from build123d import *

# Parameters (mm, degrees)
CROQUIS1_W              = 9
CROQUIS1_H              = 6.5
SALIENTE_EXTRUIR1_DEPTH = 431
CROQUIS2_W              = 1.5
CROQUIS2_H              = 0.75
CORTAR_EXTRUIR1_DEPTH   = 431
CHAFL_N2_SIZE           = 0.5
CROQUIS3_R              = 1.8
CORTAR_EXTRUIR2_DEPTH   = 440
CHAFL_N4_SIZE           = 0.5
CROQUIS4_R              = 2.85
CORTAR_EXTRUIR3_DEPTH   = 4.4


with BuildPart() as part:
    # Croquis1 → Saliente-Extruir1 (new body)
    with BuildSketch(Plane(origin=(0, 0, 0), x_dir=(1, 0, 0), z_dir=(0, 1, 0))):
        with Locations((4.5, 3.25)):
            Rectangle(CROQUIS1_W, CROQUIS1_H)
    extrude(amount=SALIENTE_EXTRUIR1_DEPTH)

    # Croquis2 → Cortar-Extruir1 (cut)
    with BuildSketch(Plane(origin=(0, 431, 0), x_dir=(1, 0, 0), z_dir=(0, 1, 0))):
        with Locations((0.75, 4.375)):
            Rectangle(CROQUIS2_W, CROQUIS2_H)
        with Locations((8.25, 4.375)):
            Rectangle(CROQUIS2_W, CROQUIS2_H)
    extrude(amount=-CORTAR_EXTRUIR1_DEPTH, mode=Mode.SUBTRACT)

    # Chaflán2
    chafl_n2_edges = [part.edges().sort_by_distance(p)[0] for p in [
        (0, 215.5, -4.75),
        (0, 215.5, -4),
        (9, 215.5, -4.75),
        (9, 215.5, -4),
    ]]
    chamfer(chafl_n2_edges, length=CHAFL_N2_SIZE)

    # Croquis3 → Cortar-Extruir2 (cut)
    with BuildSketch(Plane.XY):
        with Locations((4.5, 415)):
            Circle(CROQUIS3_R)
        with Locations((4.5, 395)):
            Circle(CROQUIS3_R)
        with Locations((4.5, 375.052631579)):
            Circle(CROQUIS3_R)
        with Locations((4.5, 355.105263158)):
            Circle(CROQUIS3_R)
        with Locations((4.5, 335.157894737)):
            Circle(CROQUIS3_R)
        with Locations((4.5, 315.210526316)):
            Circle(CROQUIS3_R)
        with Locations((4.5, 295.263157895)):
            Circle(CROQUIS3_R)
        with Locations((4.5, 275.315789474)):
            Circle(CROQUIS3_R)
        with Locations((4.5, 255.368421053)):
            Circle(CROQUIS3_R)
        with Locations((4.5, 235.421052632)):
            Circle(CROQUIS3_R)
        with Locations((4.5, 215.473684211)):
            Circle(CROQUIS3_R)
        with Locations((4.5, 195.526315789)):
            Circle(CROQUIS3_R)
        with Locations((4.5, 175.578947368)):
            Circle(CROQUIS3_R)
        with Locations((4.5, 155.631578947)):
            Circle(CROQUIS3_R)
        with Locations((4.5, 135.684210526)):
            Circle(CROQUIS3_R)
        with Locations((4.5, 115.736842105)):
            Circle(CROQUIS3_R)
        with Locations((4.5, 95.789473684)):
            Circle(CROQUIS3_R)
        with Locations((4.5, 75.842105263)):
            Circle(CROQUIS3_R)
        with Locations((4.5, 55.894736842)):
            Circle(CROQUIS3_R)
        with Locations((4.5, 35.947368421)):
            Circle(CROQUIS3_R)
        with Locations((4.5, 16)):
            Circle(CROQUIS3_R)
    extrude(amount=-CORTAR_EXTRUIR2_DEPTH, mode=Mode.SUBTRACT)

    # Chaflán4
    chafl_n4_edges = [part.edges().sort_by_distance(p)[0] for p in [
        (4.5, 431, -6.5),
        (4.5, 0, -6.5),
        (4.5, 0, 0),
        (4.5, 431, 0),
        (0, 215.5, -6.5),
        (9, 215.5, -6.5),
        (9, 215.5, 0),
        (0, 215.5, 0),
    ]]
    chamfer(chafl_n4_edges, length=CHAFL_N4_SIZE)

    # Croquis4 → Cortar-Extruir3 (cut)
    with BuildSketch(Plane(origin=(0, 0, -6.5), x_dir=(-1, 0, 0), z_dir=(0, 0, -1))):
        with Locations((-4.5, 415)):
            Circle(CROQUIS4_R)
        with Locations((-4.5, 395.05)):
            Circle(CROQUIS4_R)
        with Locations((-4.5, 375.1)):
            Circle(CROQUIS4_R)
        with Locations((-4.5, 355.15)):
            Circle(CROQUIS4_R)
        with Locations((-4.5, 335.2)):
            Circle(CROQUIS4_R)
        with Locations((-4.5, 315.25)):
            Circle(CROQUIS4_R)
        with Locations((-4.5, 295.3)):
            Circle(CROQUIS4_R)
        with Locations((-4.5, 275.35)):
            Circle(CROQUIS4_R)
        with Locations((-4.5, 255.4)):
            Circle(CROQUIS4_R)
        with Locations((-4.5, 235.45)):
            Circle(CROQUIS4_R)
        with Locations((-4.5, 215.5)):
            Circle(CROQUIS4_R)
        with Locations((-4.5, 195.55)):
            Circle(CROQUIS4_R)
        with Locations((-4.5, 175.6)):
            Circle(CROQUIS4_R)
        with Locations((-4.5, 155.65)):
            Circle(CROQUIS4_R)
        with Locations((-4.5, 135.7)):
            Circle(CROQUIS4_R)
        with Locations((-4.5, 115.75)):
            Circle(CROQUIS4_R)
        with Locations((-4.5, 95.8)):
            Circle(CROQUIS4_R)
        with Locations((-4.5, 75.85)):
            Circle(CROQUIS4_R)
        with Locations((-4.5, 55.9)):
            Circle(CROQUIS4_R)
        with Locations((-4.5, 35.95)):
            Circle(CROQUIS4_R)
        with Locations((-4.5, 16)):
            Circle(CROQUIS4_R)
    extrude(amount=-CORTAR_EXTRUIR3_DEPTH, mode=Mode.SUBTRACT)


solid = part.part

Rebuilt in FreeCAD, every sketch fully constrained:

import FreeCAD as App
import Part
import Sketcher

V = App.Vector
Q = App.Units.Quantity


def edges_at(feature, points):
    """Names of the edges that pass closest to the given points."""
    edges = feature.Shape.Edges
    near = lambda p: min(range(len(edges)), key=lambda i: edges[i].distToShape(Part.Vertex(*p))[0])
    return sorted({f"Edge{near(p) + 1}" for p in points})


def add_polygon(sketch, points):
    """Adds a closed chain of lines whose ends are joined by coincident constraints."""
    first, n = sketch.GeometryCount, len(points)
    for a, b in zip(points, points[1:] + points[:1]):
        sketch.addGeometry(Part.LineSegment(App.Vector(*a, 0), App.Vector(*b, 0)), False)
    for i in range(n):
        sketch.addConstraint(Sketcher.Constraint("Coincident", first + i, 2, first + (i + 1) % n, 1))

doc = App.newDocument("Part")
body = doc.addObject("PartDesign::Body", "Body")

sketch1 = doc.addObject("Sketcher::SketchObject", "Sketch")
body.addObject(sketch1)
sketch1.AttachmentSupport = (doc.XZ_Plane, [""])
sketch1.MapMode = "FlatFace"
add_polygon(sketch1, [(0, -6), (0, 0), (9, 0), (9, -6)])
sketch1.addConstraint([
    Sketcher.Constraint("Vertical", 0),
    Sketcher.Constraint("Horizontal", 1),
    Sketcher.Constraint("Vertical", 2),
    Sketcher.Constraint("Horizontal", 3),
    Sketcher.Constraint("Coincident", 0, 2, -1, 1),
    Sketcher.Constraint("DistanceX", 1, 1, 1, 2, Q("9 mm")),
    Sketcher.Constraint("DistanceY", 0, 1, 0, 2, Q("6.5 mm")),
])
pad1 = doc.addObject("PartDesign::Pad", "Pad")
body.addObject(pad1)
pad1.Profile = sketch1
pad1.Length = 431
pad1.Reversed = True

sketch2 = doc.addObject("Sketcher::SketchObject", "Sketch001")
body.addObject(sketch2)
sketch2.AttachmentSupport = (doc.XZ_Plane, [""])
sketch2.MapMode = "FlatFace"
sketch2.AttachmentOffset = App.Placement(V(0, 0, -431), App.Rotation())
add_polygon(sketch2, [(0, -4.8), (0, -4), (1.5, -4), (1.5, -4.8)])
add_polygon(sketch2, [(7.5, -4.8), (7.5, -4), (9, -4), (9, -4.8)])
sketch2.addConstraint([
    Sketcher.Constraint("Vertical", 0),
    Sketcher.Constraint("Horizontal", 1),
    Sketcher.Constraint("Vertical", 2),
    Sketcher.Constraint("Horizontal", 3),
    Sketcher.Constraint("Vertical", 4),
    Sketcher.Constraint("Horizontal", 5),
    Sketcher.Constraint("Vertical", 6),
    Sketcher.Constraint("Horizontal", 7),
    Sketcher.Constraint("PointOnObject", 0, 2, -2),
    Sketcher.Constraint("Horizontal", 1, 2, 4, 2),
    Sketcher.Constraint("Horizontal", 3, 2, 6, 2),
    Sketcher.Constraint("Equal", 3, 5),
    Sketcher.Constraint("DistanceX", 1, 1, 1, 2, Q("1.5 mm")),
    Sketcher.Constraint("DistanceY", 0, 2, -1, 1, Q("4 mm")),
    Sketcher.Constraint("DistanceX", -1, 1, 5, 2, Q("9 mm")),
    Sketcher.Constraint("DistanceY", 0, 1, 0, 2, Q("0.75 mm")),
])
pocket1 = doc.addObject("PartDesign::Pocket", "Pocket")
body.addObject(pocket1)
pocket1.Profile = sketch2
pocket1.Length = 431
pocket1.Reversed = True
doc.recompute()

chamfer = doc.addObject("PartDesign::Chamfer", "Chamfer")
body.addObject(chamfer)
chamfer.Base = (pocket1, edges_at(pocket1, [
    (0, 215.5, -4.75),
    (0, 215.5, -4),
    (9, 215.5, -4.75),
    (9, 215.5, -4),
]))
chamfer.Size = 0.5

sketch3 = doc.addObject("Sketcher::SketchObject", "Sketch002")
body.addObject(sketch3)
sketch3.AttachmentSupport = (doc.XY_Plane, [""])
sketch3.MapMode = "FlatFace"
sketch3.addGeometry([
    Part.Circle(V(4.5, 415, 0), V(0, 0, 1), 1.8),
    Part.Circle(V(4.5, 395, 0), V(0, 0, 1), 1.8),
    Part.Circle(V(4.5, 375.1, 0), V(0, 0, 1), 1.8),
    Part.Circle(V(4.5, 355.1, 0), V(0, 0, 1), 1.8),
    Part.Circle(V(4.5, 335.2, 0), V(0, 0, 1), 1.8),
    Part.Circle(V(4.5, 315.2, 0), V(0, 0, 1), 1.8),
    Part.Circle(V(4.5, 295.3, 0), V(0, 0, 1), 1.8),
    Part.Circle(V(4.5, 275.3, 0), V(0, 0, 1), 1.8),
    Part.Circle(V(4.5, 255.4, 0), V(0, 0, 1), 1.8),
    Part.Circle(V(4.5, 235.4, 0), V(0, 0, 1), 1.8),
    Part.Circle(V(4.5, 215.5, 0), V(0, 0, 1), 1.8),
    Part.Circle(V(4.5, 195.5, 0), V(0, 0, 1), 1.8),
    Part.Circle(V(4.5, 175.6, 0), V(0, 0, 1), 1.8),
    Part.Circle(V(4.5, 155.6, 0), V(0, 0, 1), 1.8),
    Part.Circle(V(4.5, 135.7, 0), V(0, 0, 1), 1.8),
    Part.Circle(V(4.5, 115.7, 0), V(0, 0, 1), 1.8),
    Part.Circle(V(4.5, 95.8, 0), V(0, 0, 1), 1.8),
    Part.Circle(V(4.5, 75.8, 0), V(0, 0, 1), 1.8),
    Part.Circle(V(4.5, 55.9, 0), V(0, 0, 1), 1.8),
    Part.Circle(V(4.5, 35.9, 0), V(0, 0, 1), 1.8),
    Part.Circle(V(4.5, 16, 0), V(0, 0, 1), 1.8),
], False)
sketch3.addConstraint([
    Sketcher.Constraint("Equal", 0, 1),
    Sketcher.Constraint("Equal", 1, 2),
    Sketcher.Constraint("Equal", 2, 3),
    Sketcher.Constraint("Equal", 3, 4),
    Sketcher.Constraint("Equal", 4, 5),
    Sketcher.Constraint("Equal", 5, 6),
    Sketcher.Constraint("Equal", 6, 7),
    Sketcher.Constraint("Equal", 7, 8),
    Sketcher.Constraint("Equal", 8, 9),
    Sketcher.Constraint("Equal", 9, 10),
    Sketcher.Constraint("Equal", 10, 11),
    Sketcher.Constraint("Equal", 11, 12),
    Sketcher.Constraint("Equal", 12, 13),
    Sketcher.Constraint("Equal", 13, 14),
    Sketcher.Constraint("Equal", 14, 15),
    Sketcher.Constraint("Equal", 15, 16),
    Sketcher.Constraint("Equal", 16, 17),
    Sketcher.Constraint("Equal", 17, 18),
    Sketcher.Constraint("Equal", 18, 19),
    Sketcher.Constraint("Equal", 19, 20),
    Sketcher.Constraint("Vertical", 0, 3, 1, 3),
    Sketcher.Constraint("Vertical", 1, 3, 2, 3),
    Sketcher.Constraint("Vertical", 2, 3, 3, 3),
    Sketcher.Constraint("Vertical", 3, 3, 4, 3),
    Sketcher.Constraint("Vertical", 4, 3, 5, 3),
    Sketcher.Constraint("Vertical", 5, 3, 6, 3),
    Sketcher.Constraint("Vertical", 6, 3, 7, 3),
    Sketcher.Constraint("Vertical", 7, 3, 8, 3),
    Sketcher.Constraint("Vertical", 8, 3, 9, 3),
    Sketcher.Constraint("Vertical", 9, 3, 10, 3),
    Sketcher.Constraint("Vertical", 10, 3, 11, 3),
    Sketcher.Constraint("Vertical", 11, 3, 12, 3),
    Sketcher.Constraint("Vertical", 12, 3, 13, 3),
    Sketcher.Constraint("Vertical", 13, 3, 14, 3),
    Sketcher.Constraint("Vertical", 14, 3, 15, 3),
    Sketcher.Constraint("Vertical", 15, 3, 16, 3),
    Sketcher.Constraint("Vertical", 16, 3, 17, 3),
    Sketcher.Constraint("Vertical", 17, 3, 18, 3),
    Sketcher.Constraint("Vertical", 18, 3, 19, 3),
    Sketcher.Constraint("Vertical", 19, 3, 20, 3),
    Sketcher.Constraint("Diameter", 0, Q("3.6 mm")),
    Sketcher.Constraint("DistanceY", -1, 1, 0, 3, Q("415 mm")),
    Sketcher.Constraint("DistanceY", -1, 1, 1, 3, Q("395 mm")),
    Sketcher.Constraint("DistanceY", -1, 1, 20, 3, Q("16 mm")),
    Sketcher.Constraint("DistanceX", -1, 1, 0, 3, Q("4.5 mm")),
    Sketcher.Constraint("DistanceY", -1, 1, 2, 3, Q("375.052632 mm")),
    Sketcher.Constraint("DistanceY", -1, 1, 7, 3, Q("275.315789 mm")),
    Sketcher.Constraint("DistanceY", -1, 1, 8, 3, Q("255.368421 mm")),
    Sketcher.Constraint("DistanceY", -1, 1, 13, 3, Q("155.631579 mm")),
    Sketcher.Constraint("DistanceY", -1, 1, 14, 3, Q("135.684211 mm")),
    Sketcher.Constraint("DistanceY", -1, 1, 19, 3, Q("35.947368 mm")),
    Sketcher.Constraint("DistanceY", 3, 3, 2, 3, Q("19.947368 mm")),
    Sketcher.Constraint("DistanceY", 4, 3, 3, 3, Q("19.947368 mm")),
    Sketcher.Constraint("DistanceY", 5, 3, 4, 3, Q("19.947368 mm")),
    Sketcher.Constraint("DistanceY", 6, 3, 5, 3, Q("19.947368 mm")),
    Sketcher.Constraint("DistanceY", 9, 3, 8, 3, Q("19.947368 mm")),
    Sketcher.Constraint("DistanceY", 10, 3, 9, 3, Q("19.947368 mm")),
    Sketcher.Constraint("DistanceY", 11, 3, 10, 3, Q("19.947368 mm")),
    Sketcher.Constraint("DistanceY", 12, 3, 11, 3, Q("19.947368 mm")),
    Sketcher.Constraint("DistanceY", 15, 3, 14, 3, Q("19.947368 mm")),
    Sketcher.Constraint("DistanceY", 16, 3, 15, 3, Q("19.947368 mm")),
    Sketcher.Constraint("DistanceY", 17, 3, 16, 3, Q("19.947368 mm")),
    Sketcher.Constraint("DistanceY", 18, 3, 17, 3, Q("19.947368 mm")),
])
pocket2 = doc.addObject("PartDesign::Pocket", "Pocket001")
body.addObject(pocket2)
pocket2.Profile = sketch3
pocket2.Length = 440
doc.recompute()

chamfer2 = doc.addObject("PartDesign::Chamfer", "Chamfer001")
body.addObject(chamfer2)
chamfer2.Base = (pocket2, edges_at(pocket2, [
    (4.5, 431, -6.5),
    (4.5, 0, -6.5),
    (4.5, 0, 0),
    (4.5, 431, 0),
    (0, 215.5, -6.5),
    (9, 215.5, -6.5),
    (9, 215.5, 0),
    (0, 215.5, 0),
]))
chamfer2.Size = 0.5

sketch4 = doc.addObject("Sketcher::SketchObject", "Sketch003")
body.addObject(sketch4)
sketch4.AttachmentSupport = (doc.XY_Plane, [""])
sketch4.MapMode = "FlatFace"
sketch4.AttachmentOffset = App.Placement(V(0, 0, -6.5), App.Rotation())
sketch4.addGeometry([
    Part.Circle(V(4.5, 415, 0), V(0, 0, 1), 2.9),
    Part.Circle(V(4.5, 395.1, 0), V(0, 0, 1), 2.9),
    Part.Circle(V(4.5, 375.1, 0), V(0, 0, 1), 2.9),
    Part.Circle(V(4.5, 355.1, 0), V(0, 0, 1), 2.9),
    Part.Circle(V(4.5, 335.2, 0), V(0, 0, 1), 2.9),
    Part.Circle(V(4.5, 315.2, 0), V(0, 0, 1), 2.9),
    Part.Circle(V(4.5, 295.3, 0), V(0, 0, 1), 2.9),
    Part.Circle(V(4.5, 275.4, 0), V(0, 0, 1), 2.9),
    Part.Circle(V(4.5, 255.4, 0), V(0, 0, 1), 2.9),
    Part.Circle(V(4.5, 235.4, 0), V(0, 0, 1), 2.9),
    Part.Circle(V(4.5, 215.5, 0), V(0, 0, 1), 2.9),
    Part.Circle(V(4.5, 195.6, 0), V(0, 0, 1), 2.9),
    Part.Circle(V(4.5, 175.6, 0), V(0, 0, 1), 2.9),
    Part.Circle(V(4.5, 155.7, 0), V(0, 0, 1), 2.9),
    Part.Circle(V(4.5, 135.7, 0), V(0, 0, 1), 2.9),
    Part.Circle(V(4.5, 115.8, 0), V(0, 0, 1), 2.9),
    Part.Circle(V(4.5, 95.8, 0), V(0, 0, 1), 2.9),
    Part.Circle(V(4.5, 75.8, 0), V(0, 0, 1), 2.9),
    Part.Circle(V(4.5, 55.9, 0), V(0, 0, 1), 2.9),
    Part.Circle(V(4.5, 36, 0), V(0, 0, 1), 2.9),
    Part.Circle(V(4.5, 16, 0), V(0, 0, 1), 2.9),
], False)
sketch4.addConstraint([
    Sketcher.Constraint("Equal", 0, 1),
    Sketcher.Constraint("Equal", 1, 2),
    Sketcher.Constraint("Equal", 2, 3),
    Sketcher.Constraint("Equal", 3, 4),
    Sketcher.Constraint("Equal", 4, 5),
    Sketcher.Constraint("Equal", 5, 6),
    Sketcher.Constraint("Equal", 6, 7),
    Sketcher.Constraint("Equal", 7, 8),
    Sketcher.Constraint("Equal", 8, 9),
    Sketcher.Constraint("Equal", 9, 10),
    Sketcher.Constraint("Equal", 10, 11),
    Sketcher.Constraint("Equal", 11, 12),
    Sketcher.Constraint("Equal", 12, 13),
    Sketcher.Constraint("Equal", 13, 14),
    Sketcher.Constraint("Equal", 14, 15),
    Sketcher.Constraint("Equal", 15, 16),
    Sketcher.Constraint("Equal", 16, 17),
    Sketcher.Constraint("Equal", 17, 18),
    Sketcher.Constraint("Equal", 18, 19),
    Sketcher.Constraint("Equal", 19, 20),
    Sketcher.Constraint("Vertical", 0, 3, 1, 3),
    Sketcher.Constraint("Vertical", 1, 3, 2, 3),
    Sketcher.Constraint("Vertical", 2, 3, 3, 3),
    Sketcher.Constraint("Vertical", 3, 3, 4, 3),
    Sketcher.Constraint("Vertical", 4, 3, 5, 3),
    Sketcher.Constraint("Vertical", 5, 3, 6, 3),
    Sketcher.Constraint("Vertical", 6, 3, 7, 3),
    Sketcher.Constraint("Vertical", 7, 3, 8, 3),
    Sketcher.Constraint("Vertical", 8, 3, 9, 3),
    Sketcher.Constraint("Vertical", 9, 3, 10, 3),
    Sketcher.Constraint("Vertical", 10, 3, 11, 3),
    Sketcher.Constraint("Vertical", 11, 3, 12, 3),
    Sketcher.Constraint("Vertical", 12, 3, 13, 3),
    Sketcher.Constraint("Vertical", 13, 3, 14, 3),
    Sketcher.Constraint("Vertical", 14, 3, 15, 3),
    Sketcher.Constraint("Vertical", 15, 3, 16, 3),
    Sketcher.Constraint("Vertical", 16, 3, 17, 3),
    Sketcher.Constraint("Vertical", 17, 3, 18, 3),
    Sketcher.Constraint("Vertical", 18, 3, 19, 3),
    Sketcher.Constraint("Vertical", 19, 3, 20, 3),
    Sketcher.Constraint("Diameter", 0, Q("5.7 mm")),
    Sketcher.Constraint("DistanceY", -1, 1, 0, 3, Q("415 mm")),
    Sketcher.Constraint("DistanceY", -1, 1, 20, 3, Q("16 mm")),
    Sketcher.Constraint("DistanceX", -1, 1, 0, 3, Q("4.5 mm")),
    Sketcher.Constraint("DistanceY", -1, 1, 2, 3, Q("375.1 mm")),
    Sketcher.Constraint("DistanceY", -1, 1, 4, 3, Q("335.2 mm")),
    Sketcher.Constraint("DistanceY", -1, 1, 6, 3, Q("295.3 mm")),
    Sketcher.Constraint("DistanceY", -1, 1, 8, 3, Q("255.4 mm")),
    Sketcher.Constraint("DistanceY", -1, 1, 10, 3, Q("215.5 mm")),
    Sketcher.Constraint("DistanceY", -1, 1, 12, 3, Q("175.6 mm")),
    Sketcher.Constraint("DistanceY", -1, 1, 14, 3, Q("135.7 mm")),
    Sketcher.Constraint("DistanceY", -1, 1, 16, 3, Q("95.8 mm")),
    Sketcher.Constraint("DistanceY", -1, 1, 18, 3, Q("55.9 mm")),
    Sketcher.Constraint("DistanceY", 3, 3, 1, 3, Q("39.9 mm")),
    Sketcher.Constraint("DistanceY", 5, 3, 3, 3, Q("39.9 mm")),
    Sketcher.Constraint("DistanceY", 7, 3, 5, 3, Q("39.9 mm")),
    Sketcher.Constraint("DistanceY", 9, 3, 7, 3, Q("39.9 mm")),
    Sketcher.Constraint("DistanceY", 11, 3, 9, 3, Q("39.9 mm")),
    Sketcher.Constraint("DistanceY", 13, 3, 11, 3, Q("39.9 mm")),
    Sketcher.Constraint("DistanceY", 15, 3, 13, 3, Q("39.9 mm")),
    Sketcher.Constraint("DistanceY", 17, 3, 15, 3, Q("39.9 mm")),
    Sketcher.Constraint("DistanceY", 19, 3, 17, 3, Q("39.9 mm")),
    Sketcher.Constraint("DistanceY", -1, 1, 1, 3, Q("395.05 mm")),
])
pocket3 = doc.addObject("PartDesign::Pocket", "Pocket002")
body.addObject(pocket3)
pocket3.Profile = sketch4
pocket3.Length = 4.4
pocket3.Reversed = True

doc.recompute()
